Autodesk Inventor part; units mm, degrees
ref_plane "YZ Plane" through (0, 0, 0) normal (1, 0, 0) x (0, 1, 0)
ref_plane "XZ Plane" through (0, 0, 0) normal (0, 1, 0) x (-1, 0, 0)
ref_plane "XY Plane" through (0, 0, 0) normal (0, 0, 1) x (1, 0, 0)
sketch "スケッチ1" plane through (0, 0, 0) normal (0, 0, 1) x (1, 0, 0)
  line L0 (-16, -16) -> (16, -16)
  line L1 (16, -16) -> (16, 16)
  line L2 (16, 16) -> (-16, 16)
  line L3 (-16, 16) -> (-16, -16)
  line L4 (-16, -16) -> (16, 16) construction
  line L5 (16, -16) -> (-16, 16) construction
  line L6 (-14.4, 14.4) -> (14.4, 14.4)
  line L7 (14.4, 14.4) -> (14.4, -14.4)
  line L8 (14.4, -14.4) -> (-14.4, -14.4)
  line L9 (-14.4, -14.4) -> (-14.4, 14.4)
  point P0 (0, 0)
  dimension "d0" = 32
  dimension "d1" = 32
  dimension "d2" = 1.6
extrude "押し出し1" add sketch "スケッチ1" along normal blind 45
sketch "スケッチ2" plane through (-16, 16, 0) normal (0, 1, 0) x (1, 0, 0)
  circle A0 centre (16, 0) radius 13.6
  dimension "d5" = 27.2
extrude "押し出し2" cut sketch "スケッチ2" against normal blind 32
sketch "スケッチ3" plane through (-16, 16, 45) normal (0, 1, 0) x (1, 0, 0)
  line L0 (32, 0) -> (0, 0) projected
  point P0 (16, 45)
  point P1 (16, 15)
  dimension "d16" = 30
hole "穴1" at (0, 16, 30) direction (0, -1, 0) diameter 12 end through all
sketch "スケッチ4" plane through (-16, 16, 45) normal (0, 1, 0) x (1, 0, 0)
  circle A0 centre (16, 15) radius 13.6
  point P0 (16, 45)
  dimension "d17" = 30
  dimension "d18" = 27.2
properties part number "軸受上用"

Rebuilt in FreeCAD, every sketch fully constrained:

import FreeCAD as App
import Part
import Sketcher


def add_polygon(sketch, points):
    """Adds a closed chain of lines whose ends are joined by coincident constraints."""
    first, n = sketch.GeometryCount, len(points)
    for a, b in zip(points, points[1:] + points[:1]):
        sketch.addGeometry(Part.LineSegment(App.Vector(*a, 0), App.Vector(*b, 0)), False)
    for i in range(n):
        sketch.addConstraint(Sketcher.Constraint("Coincident", first + i, 2, first + (i + 1) % n, 1))

doc = App.newDocument("Part")
body = doc.addObject("PartDesign::Body", "Body")

# Sketch on XY plane
sketch1 = body.newObject("Sketcher::SketchObject", "Sketch")
sketch1.AttachmentSupport = (doc.getObject("XY_Plane"), [""])
sketch1.MapMode = "FlatFace"
add_polygon(sketch1, [(-16, 16), (-16, -16), (16, -16), (16, 16)])  # lines 0-3
add_polygon(sketch1, [(-14, -14), (-14, 14), (14, 14), (14, -14)])  # lines 4-7
sketch1.addConstraint(Sketcher.Constraint("Vertical", 0))
sketch1.addConstraint(Sketcher.Constraint("Horizontal", 1))
sketch1.addConstraint(Sketcher.Constraint("Vertical", 2))
sketch1.addConstraint(Sketcher.Constraint("Horizontal", 3))
sketch1.addConstraint(Sketcher.Constraint("Vertical", 4))
sketch1.addConstraint(Sketcher.Constraint("Horizontal", 5))
sketch1.addConstraint(Sketcher.Constraint("Vertical", 6))
sketch1.addConstraint(Sketcher.Constraint("Horizontal", 7))
sketch1.addConstraint(Sketcher.Constraint("Symmetric", 0, 2, 2, 2, -1, 1))
sketch1.addConstraint(Sketcher.Constraint("Symmetric", 4, 2, 6, 2, -1, 1))
sketch1.addConstraint(Sketcher.Constraint("Equal", 3, 0))
sketch1.addConstraint(Sketcher.Constraint("Equal", 7, 4))
sketch1.addConstraint(Sketcher.Constraint("DistanceX", 1, 1, 1, 2, 32.0))
sketch1.addConstraint(Sketcher.Constraint("DistanceX", 3, 2, 4, 2, 1.6))
pad1 = body.newObject("PartDesign::Pad", "Pad")
pad1.Profile = sketch1
pad1.Length = 45

# Sketch on XZ plane
sketch2 = body.newObject("Sketcher::SketchObject", "Sketch001")
sketch2.AttachmentSupport = (doc.getObject("XZ_Plane"), [""])
sketch2.MapMode = "FlatFace"
sketch2.AttachmentOffset = App.Placement(App.Vector(0, 0, -16), App.Rotation())
sketch2.addGeometry(Part.Circle(App.Vector(0, 0, 0), App.Vector(0, 0, 1), 14), False)
sketch2.addConstraint(Sketcher.Constraint("Coincident", 0, 3, -1, 1))
sketch2.addConstraint(Sketcher.Constraint("Diameter", 0, 27.2))
pocket1 = body.newObject("PartDesign::Pocket", "Pocket")
pocket1.Profile = sketch2
pocket1.Length = 32
pocket1.Reversed = True

# Sketch on XZ plane
sketch3 = body.newObject("Sketcher::SketchObject", "Sketch002")
sketch3.AttachmentSupport = (doc.getObject("XZ_Plane"), [""])
sketch3.MapMode = "FlatFace"
sketch3.AttachmentOffset = App.Placement(App.Vector(0, 0, -16), App.Rotation())
sketch3.addGeometry(Part.Circle(App.Vector(0, 30, 0), App.Vector(0, 0, 1), 6), False)
sketch3.addConstraint(Sketcher.Constraint("PointOnObject", 0, 3, -2))
sketch3.addConstraint(Sketcher.Constraint("Diameter", 0, 12.0))
sketch3.addConstraint(Sketcher.Constraint("DistanceY", -1, 1, 0, 3, 30.0))
doc.recompute()
hole = body.newObject("PartDesign::Hole", "Hole")
hole.Profile = sketch3
hole.ThreadType = "None"
hole.Diameter = 12
hole.DepthType = "ThroughAll"
hole.Reversed = True

doc.recompute()
